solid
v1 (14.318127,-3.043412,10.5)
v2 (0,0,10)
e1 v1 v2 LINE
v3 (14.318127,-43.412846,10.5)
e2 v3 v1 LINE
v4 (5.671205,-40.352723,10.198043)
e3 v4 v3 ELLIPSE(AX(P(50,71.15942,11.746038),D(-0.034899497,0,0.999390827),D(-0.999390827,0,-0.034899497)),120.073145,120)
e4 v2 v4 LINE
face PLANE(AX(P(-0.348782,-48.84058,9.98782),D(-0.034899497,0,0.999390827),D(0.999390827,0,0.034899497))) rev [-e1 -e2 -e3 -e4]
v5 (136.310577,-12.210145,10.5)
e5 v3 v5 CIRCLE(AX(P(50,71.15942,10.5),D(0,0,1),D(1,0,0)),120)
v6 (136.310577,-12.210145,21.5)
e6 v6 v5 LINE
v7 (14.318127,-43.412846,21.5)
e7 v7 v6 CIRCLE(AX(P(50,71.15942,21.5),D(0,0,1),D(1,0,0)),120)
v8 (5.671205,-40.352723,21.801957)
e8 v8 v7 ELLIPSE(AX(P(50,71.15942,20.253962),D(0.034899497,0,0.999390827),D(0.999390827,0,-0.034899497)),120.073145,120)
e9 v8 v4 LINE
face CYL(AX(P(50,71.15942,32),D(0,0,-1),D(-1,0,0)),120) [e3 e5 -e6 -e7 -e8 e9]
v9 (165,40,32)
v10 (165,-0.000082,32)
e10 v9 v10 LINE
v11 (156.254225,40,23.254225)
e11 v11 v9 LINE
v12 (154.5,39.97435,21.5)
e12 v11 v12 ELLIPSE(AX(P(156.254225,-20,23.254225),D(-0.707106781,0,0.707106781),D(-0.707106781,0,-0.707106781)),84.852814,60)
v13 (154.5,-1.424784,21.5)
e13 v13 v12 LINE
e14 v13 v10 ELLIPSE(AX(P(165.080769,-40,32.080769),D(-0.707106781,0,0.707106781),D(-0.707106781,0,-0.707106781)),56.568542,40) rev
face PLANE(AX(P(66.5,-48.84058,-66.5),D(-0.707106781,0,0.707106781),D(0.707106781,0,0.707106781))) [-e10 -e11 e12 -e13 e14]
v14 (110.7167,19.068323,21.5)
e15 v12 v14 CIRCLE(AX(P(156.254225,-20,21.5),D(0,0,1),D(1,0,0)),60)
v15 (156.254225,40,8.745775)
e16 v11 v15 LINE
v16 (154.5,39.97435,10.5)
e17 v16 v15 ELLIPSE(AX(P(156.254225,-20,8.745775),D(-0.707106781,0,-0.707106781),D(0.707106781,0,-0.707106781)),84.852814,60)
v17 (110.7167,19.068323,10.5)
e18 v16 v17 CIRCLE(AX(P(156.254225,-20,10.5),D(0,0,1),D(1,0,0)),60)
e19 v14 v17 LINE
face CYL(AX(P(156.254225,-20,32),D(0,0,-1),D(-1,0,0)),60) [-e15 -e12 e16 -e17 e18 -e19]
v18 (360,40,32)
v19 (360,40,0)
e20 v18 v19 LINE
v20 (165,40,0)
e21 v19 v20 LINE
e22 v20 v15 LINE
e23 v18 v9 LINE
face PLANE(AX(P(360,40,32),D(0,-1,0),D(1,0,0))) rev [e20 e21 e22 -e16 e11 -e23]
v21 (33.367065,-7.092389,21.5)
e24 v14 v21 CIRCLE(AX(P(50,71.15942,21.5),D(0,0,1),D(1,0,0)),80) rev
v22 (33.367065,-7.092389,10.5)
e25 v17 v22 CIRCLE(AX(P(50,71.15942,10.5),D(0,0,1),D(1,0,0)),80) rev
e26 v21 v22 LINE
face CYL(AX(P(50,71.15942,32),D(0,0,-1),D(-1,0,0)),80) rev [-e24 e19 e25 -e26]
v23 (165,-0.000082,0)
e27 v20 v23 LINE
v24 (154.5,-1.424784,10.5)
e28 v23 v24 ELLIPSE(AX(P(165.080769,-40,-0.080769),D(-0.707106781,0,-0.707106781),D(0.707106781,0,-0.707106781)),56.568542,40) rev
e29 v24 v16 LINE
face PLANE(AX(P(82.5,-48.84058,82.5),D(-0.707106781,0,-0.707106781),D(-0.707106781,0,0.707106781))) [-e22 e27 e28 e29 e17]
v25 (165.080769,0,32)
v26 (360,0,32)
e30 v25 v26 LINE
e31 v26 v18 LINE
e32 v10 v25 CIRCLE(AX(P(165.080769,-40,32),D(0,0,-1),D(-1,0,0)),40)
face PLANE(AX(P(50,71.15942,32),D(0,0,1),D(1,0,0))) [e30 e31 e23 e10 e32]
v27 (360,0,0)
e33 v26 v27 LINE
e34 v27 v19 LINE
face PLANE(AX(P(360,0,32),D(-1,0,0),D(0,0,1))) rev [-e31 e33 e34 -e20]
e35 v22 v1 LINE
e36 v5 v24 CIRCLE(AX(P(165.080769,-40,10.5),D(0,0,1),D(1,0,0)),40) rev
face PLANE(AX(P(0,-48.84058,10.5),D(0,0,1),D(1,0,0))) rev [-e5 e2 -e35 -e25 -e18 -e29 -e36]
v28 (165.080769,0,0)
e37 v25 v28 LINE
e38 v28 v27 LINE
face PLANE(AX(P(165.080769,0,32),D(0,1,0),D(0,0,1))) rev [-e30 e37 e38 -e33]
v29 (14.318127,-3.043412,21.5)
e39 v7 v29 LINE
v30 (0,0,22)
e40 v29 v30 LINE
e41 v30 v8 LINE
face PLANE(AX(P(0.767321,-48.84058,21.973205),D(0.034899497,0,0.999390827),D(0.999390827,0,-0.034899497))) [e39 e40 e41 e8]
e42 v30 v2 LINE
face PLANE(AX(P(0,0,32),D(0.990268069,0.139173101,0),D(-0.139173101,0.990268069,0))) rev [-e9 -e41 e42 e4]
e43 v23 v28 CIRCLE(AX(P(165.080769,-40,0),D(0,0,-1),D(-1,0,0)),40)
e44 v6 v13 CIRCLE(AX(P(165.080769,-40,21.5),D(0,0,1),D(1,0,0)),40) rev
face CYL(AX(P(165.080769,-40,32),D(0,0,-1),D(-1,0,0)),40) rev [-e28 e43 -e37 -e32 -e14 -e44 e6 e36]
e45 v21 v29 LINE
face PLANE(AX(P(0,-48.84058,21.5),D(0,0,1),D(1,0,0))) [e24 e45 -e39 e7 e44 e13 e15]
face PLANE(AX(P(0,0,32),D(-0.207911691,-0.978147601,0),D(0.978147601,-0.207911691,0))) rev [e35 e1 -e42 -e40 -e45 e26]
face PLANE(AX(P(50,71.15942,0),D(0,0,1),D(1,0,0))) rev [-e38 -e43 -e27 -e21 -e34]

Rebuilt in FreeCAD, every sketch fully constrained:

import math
import FreeCAD as App
import Part
import Sketcher
Q = App.Units.Quantity


def add_polygon(sketch, points):
    """Adds a closed chain of lines whose ends are joined by coincident constraints."""
    first, n = sketch.GeometryCount, len(points)
    for a, b in zip(points, points[1:] + points[:1]):
        sketch.addGeometry(Part.LineSegment(App.Vector(*a, 0), App.Vector(*b, 0)), False)
    for i in range(n):
        sketch.addConstraint(Sketcher.Constraint("Coincident", first + i, 2, first + (i + 1) % n, 1))

doc = App.newDocument("Part")
params = doc.addObject("Spreadsheet::Sheet", "Params")
for row, (alias, value) in enumerate([
    ("sketch1_radius", "120 mm"),
    ("sketch1_radius2", "40 mm"),
    ("sketch1_radius3", "60 mm"),
    ("sketch1_radius4", "80 mm"),
    ("sketch1_height", "40 mm"),
    ("pad1_length", "32 mm"),
    ("sketch2_width", "165 mm"),
    ("sketch2_width2", "155 mm"),
    ("sketch3_width", "155 mm"),
], start=1):
    params.set(f"A{row}", alias)
    params.set(f"B{row}", "=" + value)
    params.setAlias(f"B{row}", alias)

body = doc.addObject("PartDesign::Body", "Body")

# Sketch on XY plane
sketch1 = doc.addObject("Sketcher::SketchObject", "Sketch")
body.addObject(sketch1)
sketch1.AttachmentSupport = (doc.XY_Plane, [""])
sketch1.MapMode = "FlatFace"
sketch1.addGeometry(Part.LineSegment(App.Vector(0, 0, 0), App.Vector(6, -40, 0)), False)
sketch1.addGeometry(Part.ArcOfCircle(Part.Circle(App.Vector(50, 71, 0), App.Vector(0, 0, 1), 120), math.radians(-112), math.radians(-44)), False)
sketch1.addGeometry(Part.ArcOfCircle(Part.Circle(App.Vector(165, -40, 0), App.Vector(0, 0, 1), 40), math.radians(90), math.radians(136)), False)
sketch1.addGeometry(Part.LineSegment(App.Vector(165, 0, 0), App.Vector(360, 0, 0)), False)
sketch1.addGeometry(Part.LineSegment(App.Vector(360, 0, 0), App.Vector(360, 40, 0)), False)
sketch1.addGeometry(Part.LineSegment(App.Vector(360, 40, 0), App.Vector(156, 40, 0)), False)
sketch1.addGeometry(Part.ArcOfCircle(Part.Circle(App.Vector(156, -20, 0), App.Vector(0, 0, 1), 60), math.radians(90), math.radians(139)), False)
sketch1.addGeometry(Part.ArcOfCircle(Part.Circle(App.Vector(50, 71, 0), App.Vector(0, 0, 1), 80), math.radians(-102), math.radians(-41)), False)
sketch1.addGeometry(Part.LineSegment(App.Vector(33, -7, 0), App.Vector(0, 0, 0)), False)
sketch1.addConstraint(Sketcher.Constraint("Coincident", 0, 2, 1, 1))
sketch1.addConstraint(Sketcher.Constraint("Tangent", 1, 2, 2, 2))
sketch1.addConstraint(Sketcher.Constraint("Tangent", 2, 1, 3, 1))
sketch1.addConstraint(Sketcher.Constraint("Coincident", 3, 2, 4, 1))
sketch1.addConstraint(Sketcher.Constraint("Coincident", 4, 2, 5, 1))
sketch1.addConstraint(Sketcher.Constraint("Tangent", 5, 2, 6, 1))
sketch1.addConstraint(Sketcher.Constraint("Tangent", 6, 2, 7, 2))
sketch1.addConstraint(Sketcher.Constraint("Tangent", 7, 1, 8, 1))
sketch1.addConstraint(Sketcher.Constraint("Coincident", 8, 2, 0, 1))
sketch1.addConstraint(Sketcher.Constraint("Horizontal", 3))
sketch1.addConstraint(Sketcher.Constraint("Vertical", 4))
sketch1.addConstraint(Sketcher.Constraint("Horizontal", 5))
sketch1.addConstraint(Sketcher.Constraint("Coincident", 8, 2, -1, 1))
sketch1.addConstraint(Sketcher.Constraint("Coincident", 7, 3, 1, 3))
sketch1.addConstraint(Sketcher.Constraint("PointOnObject", 2, 1, -1))
sketch1.addConstraint(Sketcher.Constraint("Radius", 1, 120.0))
sketch1.addConstraint(Sketcher.Constraint("Radius", 2, 40.0))
sketch1.addConstraint(Sketcher.Constraint("Radius", 6, 60.0))
sketch1.addConstraint(Sketcher.Constraint("Radius", 7, 80.0))
sketch1.addConstraint(Sketcher.Constraint("DistanceY", 4, 1, 4, 2, 40.0))
sketch1.addConstraint(Sketcher.Constraint("Angle", 0, Q("-82 deg")))
sketch1.addConstraint(Sketcher.Constraint("Angle", 8, Q("168 deg")))
sketch1.addConstraint(Sketcher.Constraint("DistanceX", -1, 1, 1, 3, 50.0))
sketch1.addConstraint(Sketcher.Constraint("DistanceX", -1, 1, 3, 2, 360.0))
sketch1.setExpression("Constraints[15]", "Params.sketch1_radius")
sketch1.setExpression("Constraints[16]", "Params.sketch1_radius2")
sketch1.setExpression("Constraints[17]", "Params.sketch1_radius3")
sketch1.setExpression("Constraints[18]", "Params.sketch1_radius4")
sketch1.setExpression("Constraints[19]", "Params.sketch1_height")
pad1 = doc.addObject("PartDesign::Pad", "Pad")
body.addObject(pad1)
pad1.Profile = sketch1
pad1.setExpression("Length", "Params.pad1_length")

# Sketch on XZ plane
sketch2 = doc.addObject("Sketcher::SketchObject", "Sketch001")
body.addObject(sketch2)
sketch2.AttachmentSupport = (doc.XZ_Plane, [""])
sketch2.MapMode = "FlatFace"
sketch2.AttachmentOffset = App.Placement(App.Vector(0, 0, -40), App.Rotation())
add_polygon(sketch2, [(155, 10), (165, 0), (0, 0), (0, 10)])  # lines 0-3
add_polygon(sketch2, [(155, 22), (0, 22), (0, 32), (165, 32)])  # lines 4-7
sketch2.addConstraint(Sketcher.Constraint("Horizontal", 1))
sketch2.addConstraint(Sketcher.Constraint("Vertical", 2))
sketch2.addConstraint(Sketcher.Constraint("Horizontal", 3))
sketch2.addConstraint(Sketcher.Constraint("Horizontal", 4))
sketch2.addConstraint(Sketcher.Constraint("Vertical", 5))
sketch2.addConstraint(Sketcher.Constraint("Horizontal", 6))
sketch2.addConstraint(Sketcher.Constraint("Coincident", 1, 2, -1, 1))
sketch2.addConstraint(Sketcher.Constraint("PointOnObject", 4, 2, -2))
sketch2.addConstraint(Sketcher.Constraint("Perpendicular", 0, 7))
sketch2.addConstraint(Sketcher.Constraint("Vertical", 0, 2, 6, 2))
sketch2.addConstraint(Sketcher.Constraint("Vertical", 3, 2, 7, 2))
sketch2.addConstraint(Sketcher.Constraint("Equal", 2, 5))
sketch2.addConstraint(Sketcher.Constraint("DistanceX", 1, 2, 1, 1, 165.0))
sketch2.addConstraint(Sketcher.Constraint("DistanceX", 3, 1, 3, 2, 155.0))
sketch2.addConstraint(Sketcher.Constraint("DistanceY", -1, 1, 4, 2, 22.0))
sketch2.setExpression("Constraints[20]", "Params.sketch2_width")
sketch2.setExpression("Constraints[21]", "Params.sketch2_width2")
pocket1 = doc.addObject("PartDesign::Pocket", "Pocket")
body.addObject(pocket1)
pocket1.Profile = sketch2
pocket1.Type = "ThroughAll"
pocket1.Reversed = True

# Sketch on XZ plane
sketch3 = doc.addObject("Sketcher::SketchObject", "Sketch002")
body.addObject(sketch3)
sketch3.AttachmentSupport = (doc.XZ_Plane, [""])
sketch3.MapMode = "FlatFace"
sketch3.AttachmentOffset = App.Placement(App.Vector(0, 0, -40), App.Rotation())
add_polygon(sketch3, [(155, 10), (0, 10), (14.3, 10.5), (154.5, 10.5)])  # lines 0-3
add_polygon(sketch3, [(14.3, 21.5), (0, 22), (155, 22), (154.5, 21.5)])  # lines 4-7
sketch3.addConstraint(Sketcher.Constraint("Horizontal", 0))
sketch3.addConstraint(Sketcher.Constraint("Horizontal", 2))
sketch3.addConstraint(Sketcher.Constraint("Horizontal", 5))
sketch3.addConstraint(Sketcher.Constraint("Horizontal", 7))
sketch3.addConstraint(Sketcher.Constraint("PointOnObject", 0, 2, -2))
sketch3.addConstraint(Sketcher.Constraint("PointOnObject", 4, 2, -2))
sketch3.addConstraint(Sketcher.Constraint("Perpendicular", 3, 6))
sketch3.addConstraint(Sketcher.Constraint("Vertical", 3, 2, 5, 2))
sketch3.addConstraint(Sketcher.Constraint("Vertical", 2, 2, 6, 2))
sketch3.addConstraint(Sketcher.Constraint("Vertical", 1, 2, 7, 2))
sketch3.addConstraint(Sketcher.Constraint("Equal", 1, 4))
sketch3.addConstraint(Sketcher.Constraint("DistanceX", 0, 2, 0, 1, 155.0))
sketch3.addConstraint(Sketcher.Constraint("Angle", 1, Q("2 deg")))
sketch3.addConstraint(Sketcher.Constraint("DistanceY", -1, 1, 0, 2, 10.0))
sketch3.addConstraint(Sketcher.Constraint("DistanceY", -1, 1, 4, 2, 22.0))
sketch3.addConstraint(Sketcher.Constraint("DistanceY", 2, 2, 6, 2, 11.0))
sketch3.setExpression("Constraints[19]", "Params.sketch3_width")
pocket2 = doc.addObject("PartDesign::Pocket", "Pocket001")
body.addObject(pocket2)
pocket2.Profile = sketch3
pocket2.Type = "ThroughAll"
pocket2.Reversed = True

doc.recompute()
